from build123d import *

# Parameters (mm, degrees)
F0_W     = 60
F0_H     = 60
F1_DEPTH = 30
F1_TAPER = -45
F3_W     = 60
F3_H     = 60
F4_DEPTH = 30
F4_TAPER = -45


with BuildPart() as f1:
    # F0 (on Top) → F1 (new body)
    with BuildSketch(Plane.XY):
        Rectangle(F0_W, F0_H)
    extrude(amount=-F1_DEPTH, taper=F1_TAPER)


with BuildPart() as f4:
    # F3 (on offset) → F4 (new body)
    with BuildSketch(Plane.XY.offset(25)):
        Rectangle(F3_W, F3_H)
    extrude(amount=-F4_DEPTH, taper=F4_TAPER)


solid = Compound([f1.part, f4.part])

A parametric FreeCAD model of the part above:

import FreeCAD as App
import Part
import Sketcher
Q = App.Units.Quantity

doc = App.newDocument("Part")
body = doc.addObject("PartDesign::Body", "Body")

sketch1 = doc.addObject("Sketcher::SketchObject", "Sketch")
body.addObject(sketch1)
sketch1.AttachmentSupport = (doc.XY_Plane, [""])
sketch1.MapMode = "FlatFace"
sketch1.addGeometry([
    Part.LineSegment(App.Vector(-30, 30, 0), App.Vector(-30, -30, 0)),
    Part.LineSegment(App.Vector(-30, -30, 0), App.Vector(30, -30, 0)),
    Part.LineSegment(App.Vector(30, -30, 0), App.Vector(30, 30, 0)),
    Part.LineSegment(App.Vector(30, 30, 0), App.Vector(-30, 30, 0)),
], False)
sketch1.addConstraint([
    Sketcher.Constraint("Coincident", 0, 2, 1, 1),
    Sketcher.Constraint("Coincident", 1, 2, 2, 1),
    Sketcher.Constraint("Coincident", 2, 2, 3, 1),
    Sketcher.Constraint("Coincident", 3, 2, 0, 1),
    Sketcher.Constraint("Vertical", 0),
    Sketcher.Constraint("Horizontal", 1),
    Sketcher.Constraint("Vertical", 2),
    Sketcher.Constraint("Horizontal", 3),
    Sketcher.Constraint("Symmetric", 0, 2, 2, 2, -1, 1),
    Sketcher.Constraint("Equal", 3, 0),
    Sketcher.Constraint("DistanceX", 1, 1, 1, 2, Q("60 mm")),
])
pad1 = doc.addObject("PartDesign::Pad", "Pad")
body.addObject(pad1)
pad1.Profile = sketch1
pad1.Length = 30
pad1.Reversed = True
pad1.TaperAngle = 45
body2 = doc.addObject("PartDesign::Body", "Body001")

sketch2 = doc.addObject("Sketcher::SketchObject", "Sketch001")
body2.addObject(sketch2)
sketch2.AttachmentSupport = (doc.getObject("XY_Plane001"), [""])
sketch2.MapMode = "FlatFace"
sketch2.AttachmentOffset = App.Placement(App.Vector(0, 0, 25), App.Rotation())
sketch2.addGeometry([
    Part.LineSegment(App.Vector(-30, 30, 0), App.Vector(-30, -30, 0)),
    Part.LineSegment(App.Vector(-30, -30, 0), App.Vector(30, -30, 0)),
    Part.LineSegment(App.Vector(30, -30, 0), App.Vector(30, 30, 0)),
    Part.LineSegment(App.Vector(30, 30, 0), App.Vector(-30, 30, 0)),
], False)
sketch2.addConstraint([
    Sketcher.Constraint("Coincident", 0, 2, 1, 1),
    Sketcher.Constraint("Coincident", 1, 2, 2, 1),
    Sketcher.Constraint("Coincident", 2, 2, 3, 1),
    Sketcher.Constraint("Coincident", 3, 2, 0, 1),
    Sketcher.Constraint("Vertical", 0),
    Sketcher.Constraint("Horizontal", 1),
    Sketcher.Constraint("Vertical", 2),
    Sketcher.Constraint("Horizontal", 3),
    Sketcher.Constraint("Symmetric", 0, 2, 2, 2, -1, 1),
    Sketcher.Constraint("Equal", 3, 0),
    Sketcher.Constraint("DistanceX", 1, 1, 1, 2, Q("60 mm")),
])
pad2 = doc.addObject("PartDesign::Pad", "Pad001")
body2.addObject(pad2)
pad2.Profile = sketch2
pad2.Length = 30
pad2.Reversed = True
pad2.TaperAngle = 45

doc.recompute()
